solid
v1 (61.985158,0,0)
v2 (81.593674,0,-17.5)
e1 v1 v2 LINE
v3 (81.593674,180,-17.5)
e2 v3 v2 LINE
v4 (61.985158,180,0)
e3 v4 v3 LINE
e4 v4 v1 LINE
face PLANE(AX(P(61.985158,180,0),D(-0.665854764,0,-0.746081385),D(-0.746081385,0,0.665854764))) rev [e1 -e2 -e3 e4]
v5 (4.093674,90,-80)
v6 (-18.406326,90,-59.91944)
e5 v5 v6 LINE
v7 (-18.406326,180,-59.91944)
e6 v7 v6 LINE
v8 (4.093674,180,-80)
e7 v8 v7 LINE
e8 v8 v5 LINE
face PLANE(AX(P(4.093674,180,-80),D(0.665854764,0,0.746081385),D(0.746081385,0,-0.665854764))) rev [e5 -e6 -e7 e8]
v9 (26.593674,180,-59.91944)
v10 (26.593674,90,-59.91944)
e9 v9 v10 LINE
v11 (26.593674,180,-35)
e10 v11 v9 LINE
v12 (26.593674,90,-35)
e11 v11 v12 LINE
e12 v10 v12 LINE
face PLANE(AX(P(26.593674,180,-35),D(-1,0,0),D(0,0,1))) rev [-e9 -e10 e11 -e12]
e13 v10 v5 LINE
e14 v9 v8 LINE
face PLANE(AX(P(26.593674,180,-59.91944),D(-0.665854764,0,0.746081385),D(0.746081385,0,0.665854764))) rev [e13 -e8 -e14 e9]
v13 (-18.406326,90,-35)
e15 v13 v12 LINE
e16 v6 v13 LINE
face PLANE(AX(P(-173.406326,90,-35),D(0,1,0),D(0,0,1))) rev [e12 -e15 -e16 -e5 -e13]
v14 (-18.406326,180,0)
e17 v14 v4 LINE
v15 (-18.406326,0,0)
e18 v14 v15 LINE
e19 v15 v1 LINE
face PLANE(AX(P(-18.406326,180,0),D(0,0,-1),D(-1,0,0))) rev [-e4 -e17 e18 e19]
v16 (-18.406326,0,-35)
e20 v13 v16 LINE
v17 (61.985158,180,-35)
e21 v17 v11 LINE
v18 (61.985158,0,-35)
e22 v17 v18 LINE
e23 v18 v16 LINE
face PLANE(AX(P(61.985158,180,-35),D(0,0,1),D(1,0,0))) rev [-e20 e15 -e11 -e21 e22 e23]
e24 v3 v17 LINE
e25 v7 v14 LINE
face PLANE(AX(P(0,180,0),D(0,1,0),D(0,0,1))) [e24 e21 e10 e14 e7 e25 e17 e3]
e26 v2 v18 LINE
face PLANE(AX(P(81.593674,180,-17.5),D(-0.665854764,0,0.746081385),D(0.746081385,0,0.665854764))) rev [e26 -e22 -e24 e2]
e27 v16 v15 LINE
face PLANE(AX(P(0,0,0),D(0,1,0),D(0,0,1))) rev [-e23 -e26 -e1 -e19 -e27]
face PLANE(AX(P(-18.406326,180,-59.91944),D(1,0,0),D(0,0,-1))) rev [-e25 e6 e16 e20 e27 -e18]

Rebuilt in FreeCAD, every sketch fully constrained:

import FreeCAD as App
import Part
import Sketcher
from FreeCAD import Vector
Q = App.Units.Quantity

doc = App.newDocument("Part")
body = doc.addObject("PartDesign::Body", "Body")

# Sketch on XZ plane
sketch1 = doc.addObject("Sketcher::SketchObject", "Sketch")
body.addObject(sketch1)
sketch1.AttachmentSupport = (doc.XZ_Plane, [""])
sketch1.MapMode = "FlatFace"
sketch1.addGeometry([
    Part.LineSegment(Vector(-18.406326, 0, 0), Vector(61.985158, 0, 0)),  # 0
    Part.LineSegment(Vector(61.985158, 0, 0), Vector(81.593674, -17.5, 0)),  # 1
    Part.LineSegment(Vector(81.593674, -17.5, 0), Vector(61.985158, -35, 0)),  # 2
    Part.LineSegment(Vector(61.985158, -35, 0), Vector(26.593674, -35, 0)),  # 3
    Part.LineSegment(Vector(26.593674, -35, 0), Vector(26.593674, -59.91944, 0)),  # 4
    Part.LineSegment(Vector(26.593674, -59.91944, 0), Vector(4.093674, -80, 0)),  # 5
    Part.LineSegment(Vector(4.093674, -80, 0), Vector(-18.406326, -59.91944, 0)),  # 6
    Part.LineSegment(Vector(-18.406326, -59.91944, 0), Vector(-18.406326, 0, 0)),  # 7
], False)
sketch1.addConstraint([
    Sketcher.Constraint("Coincident", 0, 2, 1, 1),
    Sketcher.Constraint("Coincident", 1, 2, 2, 1),
    Sketcher.Constraint("Coincident", 2, 2, 3, 1),
    Sketcher.Constraint("Coincident", 3, 2, 4, 1),
    Sketcher.Constraint("Coincident", 4, 2, 5, 1),
    Sketcher.Constraint("Coincident", 5, 2, 6, 1),
    Sketcher.Constraint("Coincident", 6, 2, 7, 1),
    Sketcher.Constraint("Coincident", 7, 2, 0, 1),
    Sketcher.Constraint("Horizontal", 0),
    Sketcher.Constraint("Horizontal", 3),
    Sketcher.Constraint("Vertical", 4),
    Sketcher.Constraint("Vertical", 7),
    Sketcher.Constraint("PointOnObject", 0, 2, -1),
    Sketcher.Constraint("Parallel", 2, 5),
    Sketcher.Constraint("Parallel", 1, 6),
    Sketcher.Constraint("Horizontal", 4, 2, 6, 2),
    Sketcher.Constraint("Vertical", 0, 2, 2, 2),
    Sketcher.Constraint("Equal", 1, 2),
    Sketcher.Constraint("DistanceY", 2, 2, -1, 1, Q("35 mm")),
    Sketcher.Constraint("DistanceY", 5, 2, -1, 1, Q("80 mm")),
    Sketcher.Constraint("DistanceX", 3, 2, 1, 2, Q("55 mm")),
    Sketcher.Constraint("DistanceX", 6, 2, 4, 2, Q("45 mm")),
    Sketcher.Constraint("DistanceY", 4, 2, 4, 1, Q("24.91944 mm")),
    Sketcher.Constraint("DistanceX", -1, 1, 0, 2, Q("61.985158 mm")),
])
pad1 = doc.addObject("PartDesign::Pad", "Pad")
body.addObject(pad1)
pad1.Profile = sketch1
pad1.Length = 180
pad1.Reversed = True

# Sketch on YZ plane
sketch2 = doc.addObject("Sketcher::SketchObject", "Sketch001")
body.addObject(sketch2)
sketch2.AttachmentSupport = (doc.YZ_Plane, [""])
sketch2.MapMode = "FlatFace"
sketch2.AttachmentOffset = App.Placement(Vector(0, 0, 26.593674), App.Rotation())
sketch2.addGeometry([
    Part.LineSegment(Vector(90, -35, 0), Vector(0, -35, 0)),
    Part.LineSegment(Vector(0, -35, 0), Vector(0, -150.688493, 0)),
    Part.LineSegment(Vector(0, -150.688493, 0), Vector(90, -150.688493, 0)),
    Part.LineSegment(Vector(90, -150.688493, 0), Vector(90, -35, 0)),
], False)
sketch2.addConstraint([
    Sketcher.Constraint("Coincident", 0, 2, 1, 1),
    Sketcher.Constraint("Coincident", 1, 2, 2, 1),
    Sketcher.Constraint("Coincident", 2, 2, 3, 1),
    Sketcher.Constraint("Coincident", 3, 2, 0, 1),
    Sketcher.Constraint("Horizontal", 0),
    Sketcher.Constraint("Vertical", 1),
    Sketcher.Constraint("Horizontal", 2),
    Sketcher.Constraint("Vertical", 3),
    Sketcher.Constraint("PointOnObject", 0, 2, -2),
    Sketcher.Constraint("DistanceX", 0, 2, 0, 1, Q("90 mm")),
    Sketcher.Constraint("DistanceY", 0, 2, -1, 1, Q("35 mm")),
    Sketcher.Constraint("DistanceY", 1, 2, 1, 1, Q("115.688493 mm")),
])
pocket1 = doc.addObject("PartDesign::Pocket", "Pocket")
body.addObject(pocket1)
pocket1.Profile = sketch2
pocket1.Length = 200

doc.recompute()
